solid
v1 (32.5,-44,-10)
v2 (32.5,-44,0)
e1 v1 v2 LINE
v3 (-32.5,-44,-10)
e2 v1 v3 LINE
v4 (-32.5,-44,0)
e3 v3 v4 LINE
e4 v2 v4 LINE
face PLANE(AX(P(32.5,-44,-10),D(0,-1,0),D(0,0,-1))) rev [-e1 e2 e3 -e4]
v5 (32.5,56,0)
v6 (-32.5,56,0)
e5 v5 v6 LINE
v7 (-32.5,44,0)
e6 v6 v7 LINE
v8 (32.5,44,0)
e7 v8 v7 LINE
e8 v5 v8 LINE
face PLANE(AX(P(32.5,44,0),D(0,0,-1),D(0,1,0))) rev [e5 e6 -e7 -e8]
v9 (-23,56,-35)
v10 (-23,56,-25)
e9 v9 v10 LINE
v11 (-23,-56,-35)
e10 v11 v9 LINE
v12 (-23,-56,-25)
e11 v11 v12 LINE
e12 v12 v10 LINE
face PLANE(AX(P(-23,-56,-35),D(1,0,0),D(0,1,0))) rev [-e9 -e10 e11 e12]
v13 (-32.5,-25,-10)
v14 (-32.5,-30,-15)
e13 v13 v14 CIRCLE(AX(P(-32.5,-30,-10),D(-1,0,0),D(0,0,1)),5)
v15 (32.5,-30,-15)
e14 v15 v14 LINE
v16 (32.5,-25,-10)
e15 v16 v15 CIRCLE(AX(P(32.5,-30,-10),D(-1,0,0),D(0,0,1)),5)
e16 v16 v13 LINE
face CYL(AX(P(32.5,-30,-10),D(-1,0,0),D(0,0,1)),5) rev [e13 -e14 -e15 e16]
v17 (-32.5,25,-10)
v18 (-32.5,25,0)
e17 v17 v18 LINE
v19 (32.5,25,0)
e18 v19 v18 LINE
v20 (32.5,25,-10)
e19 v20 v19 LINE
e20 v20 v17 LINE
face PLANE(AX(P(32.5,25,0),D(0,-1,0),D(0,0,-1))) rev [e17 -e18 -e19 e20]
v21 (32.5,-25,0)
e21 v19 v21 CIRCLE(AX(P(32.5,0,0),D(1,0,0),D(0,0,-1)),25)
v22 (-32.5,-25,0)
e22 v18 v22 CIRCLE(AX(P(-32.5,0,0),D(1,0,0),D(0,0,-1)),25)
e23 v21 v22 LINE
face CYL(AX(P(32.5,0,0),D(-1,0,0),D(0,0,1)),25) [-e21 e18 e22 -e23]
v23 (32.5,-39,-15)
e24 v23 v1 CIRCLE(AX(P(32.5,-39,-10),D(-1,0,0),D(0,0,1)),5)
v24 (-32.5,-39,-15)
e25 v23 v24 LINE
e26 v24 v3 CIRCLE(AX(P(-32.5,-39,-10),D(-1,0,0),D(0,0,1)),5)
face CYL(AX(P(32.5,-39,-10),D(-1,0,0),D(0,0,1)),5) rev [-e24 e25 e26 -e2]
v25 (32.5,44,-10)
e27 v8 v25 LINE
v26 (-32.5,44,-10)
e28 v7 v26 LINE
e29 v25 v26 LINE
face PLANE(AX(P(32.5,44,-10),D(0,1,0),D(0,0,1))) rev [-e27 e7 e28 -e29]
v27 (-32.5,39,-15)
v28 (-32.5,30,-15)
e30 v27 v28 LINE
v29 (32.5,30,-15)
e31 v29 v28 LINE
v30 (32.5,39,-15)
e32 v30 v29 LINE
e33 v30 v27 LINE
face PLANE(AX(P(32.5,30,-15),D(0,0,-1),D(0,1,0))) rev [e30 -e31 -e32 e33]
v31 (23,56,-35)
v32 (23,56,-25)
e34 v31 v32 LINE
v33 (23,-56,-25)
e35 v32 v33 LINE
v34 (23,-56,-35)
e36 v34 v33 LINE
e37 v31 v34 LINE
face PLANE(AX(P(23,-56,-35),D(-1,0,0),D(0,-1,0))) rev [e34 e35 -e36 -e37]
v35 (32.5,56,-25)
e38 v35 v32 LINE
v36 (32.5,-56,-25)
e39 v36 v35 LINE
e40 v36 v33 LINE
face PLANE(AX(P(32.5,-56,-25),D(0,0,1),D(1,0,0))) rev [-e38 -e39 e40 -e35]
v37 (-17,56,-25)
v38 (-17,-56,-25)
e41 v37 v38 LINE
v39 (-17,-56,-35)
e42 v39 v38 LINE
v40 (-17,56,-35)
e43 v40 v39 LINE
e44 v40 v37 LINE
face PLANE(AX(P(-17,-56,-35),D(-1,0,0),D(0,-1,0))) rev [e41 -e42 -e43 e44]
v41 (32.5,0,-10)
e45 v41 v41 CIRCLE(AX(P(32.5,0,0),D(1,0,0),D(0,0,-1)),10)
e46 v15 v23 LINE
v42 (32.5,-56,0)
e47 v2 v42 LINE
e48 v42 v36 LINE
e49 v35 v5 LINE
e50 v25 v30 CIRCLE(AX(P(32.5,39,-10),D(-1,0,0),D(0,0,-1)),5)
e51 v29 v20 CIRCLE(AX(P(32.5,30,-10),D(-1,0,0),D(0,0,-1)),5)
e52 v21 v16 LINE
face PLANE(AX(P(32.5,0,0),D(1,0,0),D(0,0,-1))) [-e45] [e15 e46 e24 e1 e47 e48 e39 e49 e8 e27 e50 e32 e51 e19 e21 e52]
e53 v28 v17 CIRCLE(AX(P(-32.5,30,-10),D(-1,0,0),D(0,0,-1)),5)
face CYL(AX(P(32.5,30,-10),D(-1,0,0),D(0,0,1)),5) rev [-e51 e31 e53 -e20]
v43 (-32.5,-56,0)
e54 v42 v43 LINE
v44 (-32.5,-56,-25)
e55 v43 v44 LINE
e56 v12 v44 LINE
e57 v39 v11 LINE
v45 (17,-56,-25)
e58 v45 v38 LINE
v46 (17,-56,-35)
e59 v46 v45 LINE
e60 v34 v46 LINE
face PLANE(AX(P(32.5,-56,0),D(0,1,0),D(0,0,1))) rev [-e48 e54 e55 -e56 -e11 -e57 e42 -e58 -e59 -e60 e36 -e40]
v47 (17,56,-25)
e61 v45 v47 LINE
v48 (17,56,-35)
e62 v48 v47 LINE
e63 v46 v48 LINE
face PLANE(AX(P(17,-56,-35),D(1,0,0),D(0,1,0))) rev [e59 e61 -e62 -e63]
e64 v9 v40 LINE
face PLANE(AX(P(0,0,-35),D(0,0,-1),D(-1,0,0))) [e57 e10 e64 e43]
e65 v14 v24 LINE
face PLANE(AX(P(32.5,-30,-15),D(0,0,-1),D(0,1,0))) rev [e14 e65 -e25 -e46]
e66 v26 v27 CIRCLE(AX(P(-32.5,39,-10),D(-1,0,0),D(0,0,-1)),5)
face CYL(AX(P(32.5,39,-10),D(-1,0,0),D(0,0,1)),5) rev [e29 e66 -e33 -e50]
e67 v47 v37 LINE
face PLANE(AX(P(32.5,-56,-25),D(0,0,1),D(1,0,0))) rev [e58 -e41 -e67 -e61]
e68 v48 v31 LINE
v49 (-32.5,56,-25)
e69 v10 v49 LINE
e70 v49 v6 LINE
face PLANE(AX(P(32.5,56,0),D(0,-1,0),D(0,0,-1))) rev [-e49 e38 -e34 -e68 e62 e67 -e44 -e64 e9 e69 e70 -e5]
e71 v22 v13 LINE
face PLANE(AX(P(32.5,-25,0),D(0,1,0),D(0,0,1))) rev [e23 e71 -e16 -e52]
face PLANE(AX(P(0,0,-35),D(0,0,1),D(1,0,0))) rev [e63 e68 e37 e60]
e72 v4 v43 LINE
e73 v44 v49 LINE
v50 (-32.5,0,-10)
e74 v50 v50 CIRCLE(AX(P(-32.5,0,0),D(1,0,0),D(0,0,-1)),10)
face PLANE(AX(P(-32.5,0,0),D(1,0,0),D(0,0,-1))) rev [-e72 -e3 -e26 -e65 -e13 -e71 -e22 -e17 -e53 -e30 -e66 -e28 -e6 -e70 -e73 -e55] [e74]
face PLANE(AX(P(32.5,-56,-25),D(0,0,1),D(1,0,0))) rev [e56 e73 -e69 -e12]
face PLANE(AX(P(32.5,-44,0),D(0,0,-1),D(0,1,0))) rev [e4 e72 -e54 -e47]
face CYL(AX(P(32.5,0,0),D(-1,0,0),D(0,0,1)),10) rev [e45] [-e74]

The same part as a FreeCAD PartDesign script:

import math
import FreeCAD as App
import Part
import Sketcher

V = App.Vector
Q = App.Units.Quantity

doc = App.newDocument("Part")
body = doc.addObject("PartDesign::Body", "Body")

sketch1 = body.newObject("Sketcher::SketchObject", "Sketch")
sketch1.AttachmentSupport = (doc.getObject("YZ_Plane"), [""])
sketch1.MapMode = "FlatFace"
sketch1.addGeometry([
    Part.LineSegment(V(-25, 0, 0), V(-25, -10, 0)),
    Part.ArcOfCircle(Part.Circle(V(-30, -10, 0), V(0, 0, 1), 5), math.radians(-90), math.radians(0)),
    Part.LineSegment(V(-30, -15, 0), V(-39, -15, 0)),
    Part.ArcOfCircle(Part.Circle(V(-39, -10, 0), V(0, 0, 1), 5), math.radians(180), math.radians(270)),
    Part.LineSegment(V(-44, -10, 0), V(-44, 0, 0)),
    Part.LineSegment(V(-44, 0, 0), V(-56, 0, 0)),
    Part.LineSegment(V(-56, 0, 0), V(-56, -25, 0)),
    Part.LineSegment(V(-56, -25, 0), V(56, -25, 0)),
    Part.LineSegment(V(56, -25, 0), V(56, 0, 0)),
    Part.LineSegment(V(56, 0, 0), V(44, 0, 0)),
    Part.LineSegment(V(44, 0, 0), V(44, -10, 0)),
    Part.ArcOfCircle(Part.Circle(V(39, -10, 0), V(0, 0, 1), 5), math.radians(-90), math.radians(0)),
    Part.LineSegment(V(39, -15, 0), V(30, -15, 0)),
    Part.ArcOfCircle(Part.Circle(V(30, -10, 0), V(0, 0, 1), 5), math.radians(180), math.radians(270)),
    Part.LineSegment(V(25, -10, 0), V(25, 0, 0)),
    Part.ArcOfCircle(Part.Circle(V(0, 0, 0), V(0, 0, 1), 25), math.radians(0), math.radians(180)),
    Part.Circle(V(0, 0, 0), V(0, 0, 1), 10),
], False)
sketch1.addConstraint([
    Sketcher.Constraint("Tangent", 0, 2, 1, 2),
    Sketcher.Constraint("Tangent", 1, 1, 2, 1),
    Sketcher.Constraint("Tangent", 2, 2, 3, 2),
    Sketcher.Constraint("Tangent", 3, 1, 4, 1),
    Sketcher.Constraint("Coincident", 4, 2, 5, 1),
    Sketcher.Constraint("Coincident", 5, 2, 6, 1),
    Sketcher.Constraint("Coincident", 6, 2, 7, 1),
    Sketcher.Constraint("Coincident", 7, 2, 8, 1),
    Sketcher.Constraint("Coincident", 8, 2, 9, 1),
    Sketcher.Constraint("Coincident", 9, 2, 10, 1),
    Sketcher.Constraint("Tangent", 10, 2, 11, 2),
    Sketcher.Constraint("Tangent", 11, 1, 12, 1),
    Sketcher.Constraint("Tangent", 12, 2, 13, 2),
    Sketcher.Constraint("Tangent", 13, 1, 14, 1),
    Sketcher.Constraint("Tangent", 14, 2, 15, 1),
    Sketcher.Constraint("Tangent", 15, 2, 0, 1),
    Sketcher.Constraint("Vertical", 0),
    Sketcher.Constraint("Horizontal", 2),
    Sketcher.Constraint("Vertical", 4),
    Sketcher.Constraint("Horizontal", 5),
    Sketcher.Constraint("Vertical", 6),
    Sketcher.Constraint("Horizontal", 7),
    Sketcher.Constraint("Vertical", 8),
    Sketcher.Constraint("Horizontal", 9),
    Sketcher.Constraint("Vertical", 10),
    Sketcher.Constraint("Horizontal", 12),
    Sketcher.Constraint("Vertical", 14),
    Sketcher.Constraint("Coincident", 15, 3, -1, 1),
    Sketcher.Constraint("Coincident", 16, 3, -1, 1),
    Sketcher.Constraint("Equal", 1, 3),
    Sketcher.Constraint("Equal", 3, 11),
    Sketcher.Constraint("Equal", 11, 13),
    Sketcher.Constraint("Symmetric", 5, 2, 8, 2, -1, 1),
    Sketcher.Constraint("Symmetric", 3, 3, 11, 3, -2),
    Sketcher.Constraint("PointOnObject", 4, 2, -1),
    Sketcher.Constraint("Diameter", 16, Q("20 mm")),
    Sketcher.Constraint("Radius", 1, Q("5 mm")),
    Sketcher.Constraint("Radius", 15, Q("25 mm")),
    Sketcher.Constraint("DistanceX", 2, 2, 2, 1, Q("9 mm")),
    Sketcher.Constraint("DistanceX", 5, 2, 5, 1, Q("12 mm")),
    Sketcher.Constraint("DistanceY", 0, 2, 0, 1, Q("10 mm")),
    Sketcher.Constraint("DistanceY", 6, 2, 6, 1, Q("25 mm")),
])
pad1 = body.newObject("PartDesign::Pad", "Pad")
pad1.Profile = sketch1
pad1.Length = 65
pad1.Midplane = True

sketch2 = body.newObject("Sketcher::SketchObject", "Sketch001")
sketch2.AttachmentSupport = (doc.getObject("XY_Plane"), [""])
sketch2.MapMode = "FlatFace"
sketch2.AttachmentOffset = App.Placement(V(0, 0, -25), App.Rotation())
sketch2.addGeometry([
    Part.LineSegment(V(-23, -56, 0), V(-23, 56, 0)),
    Part.LineSegment(V(-23, 56, 0), V(-17, 56, 0)),
    Part.LineSegment(V(-17, 56, 0), V(-17, -56, 0)),
    Part.LineSegment(V(-17, -56, 0), V(-23, -56, 0)),
    Part.LineSegment(V(17, -56, 0), V(17, 56, 0)),
    Part.LineSegment(V(17, 56, 0), V(23, 56, 0)),
    Part.LineSegment(V(23, 56, 0), V(23, -56, 0)),
    Part.LineSegment(V(23, -56, 0), V(17, -56, 0)),
], False)
sketch2.addConstraint([
    Sketcher.Constraint("Coincident", 0, 2, 1, 1),
    Sketcher.Constraint("Coincident", 1, 2, 2, 1),
    Sketcher.Constraint("Coincident", 2, 2, 3, 1),
    Sketcher.Constraint("Coincident", 3, 2, 0, 1),
    Sketcher.Constraint("Coincident", 4, 2, 5, 1),
    Sketcher.Constraint("Coincident", 5, 2, 6, 1),
    Sketcher.Constraint("Coincident", 6, 2, 7, 1),
    Sketcher.Constraint("Coincident", 7, 2, 4, 1),
    Sketcher.Constraint("Vertical", 0),
    Sketcher.Constraint("Horizontal", 1),
    Sketcher.Constraint("Vertical", 2),
    Sketcher.Constraint("Horizontal", 3),
    Sketcher.Constraint("Vertical", 4),
    Sketcher.Constraint("Horizontal", 5),
    Sketcher.Constraint("Vertical", 6),
    Sketcher.Constraint("Horizontal", 7),
    Sketcher.Constraint("Symmetric", 2, 2, 4, 2, -1, 1),
    Sketcher.Constraint("Symmetric", 0, 2, 6, 2, -1, 1),
    Sketcher.Constraint("Horizontal", 1, 2, 4, 2),
    Sketcher.Constraint("DistanceX", 1, 1, 1, 2, Q("6 mm")),
    Sketcher.Constraint("DistanceY", 0, 1, 0, 2, Q("112 mm")),
    Sketcher.Constraint("DistanceX", 0, 2, -1, 1, Q("23 mm")),
])
pad2 = body.newObject("PartDesign::Pad", "Pad001")
pad2.Profile = sketch2
pad2.Length = 10
pad2.Reversed = True

doc.recompute()
